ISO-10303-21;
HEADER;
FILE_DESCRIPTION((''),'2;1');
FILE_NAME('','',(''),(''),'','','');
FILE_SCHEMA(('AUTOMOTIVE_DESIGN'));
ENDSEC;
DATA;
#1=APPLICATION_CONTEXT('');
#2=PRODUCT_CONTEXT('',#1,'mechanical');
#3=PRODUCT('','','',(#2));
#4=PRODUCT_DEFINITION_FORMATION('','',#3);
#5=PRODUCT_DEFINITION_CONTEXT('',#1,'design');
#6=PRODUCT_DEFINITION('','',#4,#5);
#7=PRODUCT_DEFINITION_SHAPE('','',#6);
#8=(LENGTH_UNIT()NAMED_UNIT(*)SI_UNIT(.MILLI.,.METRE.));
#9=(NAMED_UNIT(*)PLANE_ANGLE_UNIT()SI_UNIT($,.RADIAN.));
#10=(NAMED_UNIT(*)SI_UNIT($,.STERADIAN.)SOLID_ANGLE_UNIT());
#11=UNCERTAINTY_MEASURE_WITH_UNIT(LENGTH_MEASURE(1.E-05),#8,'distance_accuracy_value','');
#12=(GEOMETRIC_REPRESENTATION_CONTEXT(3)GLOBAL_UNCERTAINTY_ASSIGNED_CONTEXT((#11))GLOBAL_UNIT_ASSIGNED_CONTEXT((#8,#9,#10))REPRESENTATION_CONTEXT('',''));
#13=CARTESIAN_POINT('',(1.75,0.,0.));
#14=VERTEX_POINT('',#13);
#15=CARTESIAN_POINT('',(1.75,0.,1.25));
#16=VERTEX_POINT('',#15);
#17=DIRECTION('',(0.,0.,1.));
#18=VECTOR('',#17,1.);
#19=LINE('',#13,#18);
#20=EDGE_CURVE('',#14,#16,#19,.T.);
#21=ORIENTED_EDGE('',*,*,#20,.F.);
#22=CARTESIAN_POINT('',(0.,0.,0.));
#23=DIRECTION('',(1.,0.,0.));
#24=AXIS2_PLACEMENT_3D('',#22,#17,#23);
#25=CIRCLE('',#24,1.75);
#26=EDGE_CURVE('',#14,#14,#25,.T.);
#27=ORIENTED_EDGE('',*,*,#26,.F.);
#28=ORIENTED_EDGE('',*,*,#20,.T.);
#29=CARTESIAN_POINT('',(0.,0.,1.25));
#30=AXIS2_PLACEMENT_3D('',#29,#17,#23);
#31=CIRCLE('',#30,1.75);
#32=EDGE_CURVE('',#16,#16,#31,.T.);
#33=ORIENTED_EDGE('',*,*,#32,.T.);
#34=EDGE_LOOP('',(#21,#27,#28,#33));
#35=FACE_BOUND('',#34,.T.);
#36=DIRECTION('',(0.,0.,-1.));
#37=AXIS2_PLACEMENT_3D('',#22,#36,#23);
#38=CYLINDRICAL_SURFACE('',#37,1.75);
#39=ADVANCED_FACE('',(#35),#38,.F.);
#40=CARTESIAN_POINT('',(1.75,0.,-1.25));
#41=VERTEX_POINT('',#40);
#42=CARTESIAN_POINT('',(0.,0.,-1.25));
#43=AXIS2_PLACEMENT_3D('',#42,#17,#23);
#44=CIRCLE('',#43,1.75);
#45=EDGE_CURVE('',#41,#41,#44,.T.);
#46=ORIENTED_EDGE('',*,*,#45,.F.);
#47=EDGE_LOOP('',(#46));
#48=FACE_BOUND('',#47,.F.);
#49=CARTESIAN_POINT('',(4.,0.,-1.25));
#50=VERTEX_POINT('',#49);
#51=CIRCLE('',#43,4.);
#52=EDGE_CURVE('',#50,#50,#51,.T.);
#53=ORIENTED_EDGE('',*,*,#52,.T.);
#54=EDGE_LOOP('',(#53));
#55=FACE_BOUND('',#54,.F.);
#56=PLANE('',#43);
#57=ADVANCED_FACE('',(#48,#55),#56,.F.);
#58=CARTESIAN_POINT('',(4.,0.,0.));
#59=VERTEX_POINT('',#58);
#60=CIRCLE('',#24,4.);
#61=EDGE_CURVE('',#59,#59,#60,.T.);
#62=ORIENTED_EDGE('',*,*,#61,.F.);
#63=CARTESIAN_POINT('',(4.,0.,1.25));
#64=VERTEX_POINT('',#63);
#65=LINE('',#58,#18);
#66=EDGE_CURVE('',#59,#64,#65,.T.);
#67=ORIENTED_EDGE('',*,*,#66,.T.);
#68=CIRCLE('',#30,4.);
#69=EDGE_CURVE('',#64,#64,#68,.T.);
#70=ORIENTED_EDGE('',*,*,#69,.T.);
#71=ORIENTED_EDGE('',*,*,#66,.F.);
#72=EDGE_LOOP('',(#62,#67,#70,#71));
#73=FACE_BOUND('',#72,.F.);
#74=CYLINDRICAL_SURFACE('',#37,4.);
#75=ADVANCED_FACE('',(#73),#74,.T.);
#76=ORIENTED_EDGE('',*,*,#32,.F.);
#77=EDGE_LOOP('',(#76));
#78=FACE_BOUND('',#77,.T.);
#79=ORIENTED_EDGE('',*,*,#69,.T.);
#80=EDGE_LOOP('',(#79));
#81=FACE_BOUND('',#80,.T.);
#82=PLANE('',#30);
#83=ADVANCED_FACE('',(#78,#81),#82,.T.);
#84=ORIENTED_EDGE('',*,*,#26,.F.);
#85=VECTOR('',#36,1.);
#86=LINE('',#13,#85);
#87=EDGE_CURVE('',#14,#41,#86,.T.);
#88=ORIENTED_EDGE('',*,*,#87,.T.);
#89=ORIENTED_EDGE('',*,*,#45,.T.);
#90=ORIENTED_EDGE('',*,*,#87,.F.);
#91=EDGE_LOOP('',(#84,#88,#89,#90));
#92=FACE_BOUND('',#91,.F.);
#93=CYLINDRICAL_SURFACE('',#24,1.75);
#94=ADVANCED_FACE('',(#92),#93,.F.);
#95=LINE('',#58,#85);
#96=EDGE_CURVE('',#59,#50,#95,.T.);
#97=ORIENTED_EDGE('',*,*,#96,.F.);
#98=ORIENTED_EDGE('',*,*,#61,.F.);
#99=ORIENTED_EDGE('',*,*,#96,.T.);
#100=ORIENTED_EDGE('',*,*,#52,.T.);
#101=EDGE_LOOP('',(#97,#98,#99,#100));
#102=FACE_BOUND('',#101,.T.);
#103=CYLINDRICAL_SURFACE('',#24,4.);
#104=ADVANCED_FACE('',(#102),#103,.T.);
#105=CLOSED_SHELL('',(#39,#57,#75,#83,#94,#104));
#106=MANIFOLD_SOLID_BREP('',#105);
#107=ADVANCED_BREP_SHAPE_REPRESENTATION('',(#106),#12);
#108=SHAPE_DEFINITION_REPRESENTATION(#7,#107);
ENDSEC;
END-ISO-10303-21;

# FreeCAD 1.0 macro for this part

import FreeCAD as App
import Part
import Sketcher

doc = App.newDocument("Part")
body = doc.addObject("PartDesign::Body", "Body")

sketch1 = doc.addObject("Sketcher::SketchObject", "Sketch")
body.addObject(sketch1)
sketch1.AttachmentSupport = (doc.XY_Plane, [""])
sketch1.MapMode = "FlatFace"
sketch1.addGeometry(Part.Circle(App.Vector(0, 0, 0), App.Vector(0, 0, 1), 4), False)
sketch1.addGeometry(Part.Circle(App.Vector(0, 0, 0), App.Vector(0, 0, 1), 1.75), False)
sketch1.addConstraint(Sketcher.Constraint("Coincident", 0, 3, -1, 1))
sketch1.addConstraint(Sketcher.Constraint("Coincident", 1, 3, -1, 1))
sketch1.addConstraint(Sketcher.Constraint("Diameter", 0, 8.0))
sketch1.addConstraint(Sketcher.Constraint("Diameter", 1, 3.5))
pad1 = doc.addObject("PartDesign::Pad", "Pad")
body.addObject(pad1)
pad1.Profile = sketch1
pad1.Length = 2.5
pad1.Midplane = True

doc.recompute()
